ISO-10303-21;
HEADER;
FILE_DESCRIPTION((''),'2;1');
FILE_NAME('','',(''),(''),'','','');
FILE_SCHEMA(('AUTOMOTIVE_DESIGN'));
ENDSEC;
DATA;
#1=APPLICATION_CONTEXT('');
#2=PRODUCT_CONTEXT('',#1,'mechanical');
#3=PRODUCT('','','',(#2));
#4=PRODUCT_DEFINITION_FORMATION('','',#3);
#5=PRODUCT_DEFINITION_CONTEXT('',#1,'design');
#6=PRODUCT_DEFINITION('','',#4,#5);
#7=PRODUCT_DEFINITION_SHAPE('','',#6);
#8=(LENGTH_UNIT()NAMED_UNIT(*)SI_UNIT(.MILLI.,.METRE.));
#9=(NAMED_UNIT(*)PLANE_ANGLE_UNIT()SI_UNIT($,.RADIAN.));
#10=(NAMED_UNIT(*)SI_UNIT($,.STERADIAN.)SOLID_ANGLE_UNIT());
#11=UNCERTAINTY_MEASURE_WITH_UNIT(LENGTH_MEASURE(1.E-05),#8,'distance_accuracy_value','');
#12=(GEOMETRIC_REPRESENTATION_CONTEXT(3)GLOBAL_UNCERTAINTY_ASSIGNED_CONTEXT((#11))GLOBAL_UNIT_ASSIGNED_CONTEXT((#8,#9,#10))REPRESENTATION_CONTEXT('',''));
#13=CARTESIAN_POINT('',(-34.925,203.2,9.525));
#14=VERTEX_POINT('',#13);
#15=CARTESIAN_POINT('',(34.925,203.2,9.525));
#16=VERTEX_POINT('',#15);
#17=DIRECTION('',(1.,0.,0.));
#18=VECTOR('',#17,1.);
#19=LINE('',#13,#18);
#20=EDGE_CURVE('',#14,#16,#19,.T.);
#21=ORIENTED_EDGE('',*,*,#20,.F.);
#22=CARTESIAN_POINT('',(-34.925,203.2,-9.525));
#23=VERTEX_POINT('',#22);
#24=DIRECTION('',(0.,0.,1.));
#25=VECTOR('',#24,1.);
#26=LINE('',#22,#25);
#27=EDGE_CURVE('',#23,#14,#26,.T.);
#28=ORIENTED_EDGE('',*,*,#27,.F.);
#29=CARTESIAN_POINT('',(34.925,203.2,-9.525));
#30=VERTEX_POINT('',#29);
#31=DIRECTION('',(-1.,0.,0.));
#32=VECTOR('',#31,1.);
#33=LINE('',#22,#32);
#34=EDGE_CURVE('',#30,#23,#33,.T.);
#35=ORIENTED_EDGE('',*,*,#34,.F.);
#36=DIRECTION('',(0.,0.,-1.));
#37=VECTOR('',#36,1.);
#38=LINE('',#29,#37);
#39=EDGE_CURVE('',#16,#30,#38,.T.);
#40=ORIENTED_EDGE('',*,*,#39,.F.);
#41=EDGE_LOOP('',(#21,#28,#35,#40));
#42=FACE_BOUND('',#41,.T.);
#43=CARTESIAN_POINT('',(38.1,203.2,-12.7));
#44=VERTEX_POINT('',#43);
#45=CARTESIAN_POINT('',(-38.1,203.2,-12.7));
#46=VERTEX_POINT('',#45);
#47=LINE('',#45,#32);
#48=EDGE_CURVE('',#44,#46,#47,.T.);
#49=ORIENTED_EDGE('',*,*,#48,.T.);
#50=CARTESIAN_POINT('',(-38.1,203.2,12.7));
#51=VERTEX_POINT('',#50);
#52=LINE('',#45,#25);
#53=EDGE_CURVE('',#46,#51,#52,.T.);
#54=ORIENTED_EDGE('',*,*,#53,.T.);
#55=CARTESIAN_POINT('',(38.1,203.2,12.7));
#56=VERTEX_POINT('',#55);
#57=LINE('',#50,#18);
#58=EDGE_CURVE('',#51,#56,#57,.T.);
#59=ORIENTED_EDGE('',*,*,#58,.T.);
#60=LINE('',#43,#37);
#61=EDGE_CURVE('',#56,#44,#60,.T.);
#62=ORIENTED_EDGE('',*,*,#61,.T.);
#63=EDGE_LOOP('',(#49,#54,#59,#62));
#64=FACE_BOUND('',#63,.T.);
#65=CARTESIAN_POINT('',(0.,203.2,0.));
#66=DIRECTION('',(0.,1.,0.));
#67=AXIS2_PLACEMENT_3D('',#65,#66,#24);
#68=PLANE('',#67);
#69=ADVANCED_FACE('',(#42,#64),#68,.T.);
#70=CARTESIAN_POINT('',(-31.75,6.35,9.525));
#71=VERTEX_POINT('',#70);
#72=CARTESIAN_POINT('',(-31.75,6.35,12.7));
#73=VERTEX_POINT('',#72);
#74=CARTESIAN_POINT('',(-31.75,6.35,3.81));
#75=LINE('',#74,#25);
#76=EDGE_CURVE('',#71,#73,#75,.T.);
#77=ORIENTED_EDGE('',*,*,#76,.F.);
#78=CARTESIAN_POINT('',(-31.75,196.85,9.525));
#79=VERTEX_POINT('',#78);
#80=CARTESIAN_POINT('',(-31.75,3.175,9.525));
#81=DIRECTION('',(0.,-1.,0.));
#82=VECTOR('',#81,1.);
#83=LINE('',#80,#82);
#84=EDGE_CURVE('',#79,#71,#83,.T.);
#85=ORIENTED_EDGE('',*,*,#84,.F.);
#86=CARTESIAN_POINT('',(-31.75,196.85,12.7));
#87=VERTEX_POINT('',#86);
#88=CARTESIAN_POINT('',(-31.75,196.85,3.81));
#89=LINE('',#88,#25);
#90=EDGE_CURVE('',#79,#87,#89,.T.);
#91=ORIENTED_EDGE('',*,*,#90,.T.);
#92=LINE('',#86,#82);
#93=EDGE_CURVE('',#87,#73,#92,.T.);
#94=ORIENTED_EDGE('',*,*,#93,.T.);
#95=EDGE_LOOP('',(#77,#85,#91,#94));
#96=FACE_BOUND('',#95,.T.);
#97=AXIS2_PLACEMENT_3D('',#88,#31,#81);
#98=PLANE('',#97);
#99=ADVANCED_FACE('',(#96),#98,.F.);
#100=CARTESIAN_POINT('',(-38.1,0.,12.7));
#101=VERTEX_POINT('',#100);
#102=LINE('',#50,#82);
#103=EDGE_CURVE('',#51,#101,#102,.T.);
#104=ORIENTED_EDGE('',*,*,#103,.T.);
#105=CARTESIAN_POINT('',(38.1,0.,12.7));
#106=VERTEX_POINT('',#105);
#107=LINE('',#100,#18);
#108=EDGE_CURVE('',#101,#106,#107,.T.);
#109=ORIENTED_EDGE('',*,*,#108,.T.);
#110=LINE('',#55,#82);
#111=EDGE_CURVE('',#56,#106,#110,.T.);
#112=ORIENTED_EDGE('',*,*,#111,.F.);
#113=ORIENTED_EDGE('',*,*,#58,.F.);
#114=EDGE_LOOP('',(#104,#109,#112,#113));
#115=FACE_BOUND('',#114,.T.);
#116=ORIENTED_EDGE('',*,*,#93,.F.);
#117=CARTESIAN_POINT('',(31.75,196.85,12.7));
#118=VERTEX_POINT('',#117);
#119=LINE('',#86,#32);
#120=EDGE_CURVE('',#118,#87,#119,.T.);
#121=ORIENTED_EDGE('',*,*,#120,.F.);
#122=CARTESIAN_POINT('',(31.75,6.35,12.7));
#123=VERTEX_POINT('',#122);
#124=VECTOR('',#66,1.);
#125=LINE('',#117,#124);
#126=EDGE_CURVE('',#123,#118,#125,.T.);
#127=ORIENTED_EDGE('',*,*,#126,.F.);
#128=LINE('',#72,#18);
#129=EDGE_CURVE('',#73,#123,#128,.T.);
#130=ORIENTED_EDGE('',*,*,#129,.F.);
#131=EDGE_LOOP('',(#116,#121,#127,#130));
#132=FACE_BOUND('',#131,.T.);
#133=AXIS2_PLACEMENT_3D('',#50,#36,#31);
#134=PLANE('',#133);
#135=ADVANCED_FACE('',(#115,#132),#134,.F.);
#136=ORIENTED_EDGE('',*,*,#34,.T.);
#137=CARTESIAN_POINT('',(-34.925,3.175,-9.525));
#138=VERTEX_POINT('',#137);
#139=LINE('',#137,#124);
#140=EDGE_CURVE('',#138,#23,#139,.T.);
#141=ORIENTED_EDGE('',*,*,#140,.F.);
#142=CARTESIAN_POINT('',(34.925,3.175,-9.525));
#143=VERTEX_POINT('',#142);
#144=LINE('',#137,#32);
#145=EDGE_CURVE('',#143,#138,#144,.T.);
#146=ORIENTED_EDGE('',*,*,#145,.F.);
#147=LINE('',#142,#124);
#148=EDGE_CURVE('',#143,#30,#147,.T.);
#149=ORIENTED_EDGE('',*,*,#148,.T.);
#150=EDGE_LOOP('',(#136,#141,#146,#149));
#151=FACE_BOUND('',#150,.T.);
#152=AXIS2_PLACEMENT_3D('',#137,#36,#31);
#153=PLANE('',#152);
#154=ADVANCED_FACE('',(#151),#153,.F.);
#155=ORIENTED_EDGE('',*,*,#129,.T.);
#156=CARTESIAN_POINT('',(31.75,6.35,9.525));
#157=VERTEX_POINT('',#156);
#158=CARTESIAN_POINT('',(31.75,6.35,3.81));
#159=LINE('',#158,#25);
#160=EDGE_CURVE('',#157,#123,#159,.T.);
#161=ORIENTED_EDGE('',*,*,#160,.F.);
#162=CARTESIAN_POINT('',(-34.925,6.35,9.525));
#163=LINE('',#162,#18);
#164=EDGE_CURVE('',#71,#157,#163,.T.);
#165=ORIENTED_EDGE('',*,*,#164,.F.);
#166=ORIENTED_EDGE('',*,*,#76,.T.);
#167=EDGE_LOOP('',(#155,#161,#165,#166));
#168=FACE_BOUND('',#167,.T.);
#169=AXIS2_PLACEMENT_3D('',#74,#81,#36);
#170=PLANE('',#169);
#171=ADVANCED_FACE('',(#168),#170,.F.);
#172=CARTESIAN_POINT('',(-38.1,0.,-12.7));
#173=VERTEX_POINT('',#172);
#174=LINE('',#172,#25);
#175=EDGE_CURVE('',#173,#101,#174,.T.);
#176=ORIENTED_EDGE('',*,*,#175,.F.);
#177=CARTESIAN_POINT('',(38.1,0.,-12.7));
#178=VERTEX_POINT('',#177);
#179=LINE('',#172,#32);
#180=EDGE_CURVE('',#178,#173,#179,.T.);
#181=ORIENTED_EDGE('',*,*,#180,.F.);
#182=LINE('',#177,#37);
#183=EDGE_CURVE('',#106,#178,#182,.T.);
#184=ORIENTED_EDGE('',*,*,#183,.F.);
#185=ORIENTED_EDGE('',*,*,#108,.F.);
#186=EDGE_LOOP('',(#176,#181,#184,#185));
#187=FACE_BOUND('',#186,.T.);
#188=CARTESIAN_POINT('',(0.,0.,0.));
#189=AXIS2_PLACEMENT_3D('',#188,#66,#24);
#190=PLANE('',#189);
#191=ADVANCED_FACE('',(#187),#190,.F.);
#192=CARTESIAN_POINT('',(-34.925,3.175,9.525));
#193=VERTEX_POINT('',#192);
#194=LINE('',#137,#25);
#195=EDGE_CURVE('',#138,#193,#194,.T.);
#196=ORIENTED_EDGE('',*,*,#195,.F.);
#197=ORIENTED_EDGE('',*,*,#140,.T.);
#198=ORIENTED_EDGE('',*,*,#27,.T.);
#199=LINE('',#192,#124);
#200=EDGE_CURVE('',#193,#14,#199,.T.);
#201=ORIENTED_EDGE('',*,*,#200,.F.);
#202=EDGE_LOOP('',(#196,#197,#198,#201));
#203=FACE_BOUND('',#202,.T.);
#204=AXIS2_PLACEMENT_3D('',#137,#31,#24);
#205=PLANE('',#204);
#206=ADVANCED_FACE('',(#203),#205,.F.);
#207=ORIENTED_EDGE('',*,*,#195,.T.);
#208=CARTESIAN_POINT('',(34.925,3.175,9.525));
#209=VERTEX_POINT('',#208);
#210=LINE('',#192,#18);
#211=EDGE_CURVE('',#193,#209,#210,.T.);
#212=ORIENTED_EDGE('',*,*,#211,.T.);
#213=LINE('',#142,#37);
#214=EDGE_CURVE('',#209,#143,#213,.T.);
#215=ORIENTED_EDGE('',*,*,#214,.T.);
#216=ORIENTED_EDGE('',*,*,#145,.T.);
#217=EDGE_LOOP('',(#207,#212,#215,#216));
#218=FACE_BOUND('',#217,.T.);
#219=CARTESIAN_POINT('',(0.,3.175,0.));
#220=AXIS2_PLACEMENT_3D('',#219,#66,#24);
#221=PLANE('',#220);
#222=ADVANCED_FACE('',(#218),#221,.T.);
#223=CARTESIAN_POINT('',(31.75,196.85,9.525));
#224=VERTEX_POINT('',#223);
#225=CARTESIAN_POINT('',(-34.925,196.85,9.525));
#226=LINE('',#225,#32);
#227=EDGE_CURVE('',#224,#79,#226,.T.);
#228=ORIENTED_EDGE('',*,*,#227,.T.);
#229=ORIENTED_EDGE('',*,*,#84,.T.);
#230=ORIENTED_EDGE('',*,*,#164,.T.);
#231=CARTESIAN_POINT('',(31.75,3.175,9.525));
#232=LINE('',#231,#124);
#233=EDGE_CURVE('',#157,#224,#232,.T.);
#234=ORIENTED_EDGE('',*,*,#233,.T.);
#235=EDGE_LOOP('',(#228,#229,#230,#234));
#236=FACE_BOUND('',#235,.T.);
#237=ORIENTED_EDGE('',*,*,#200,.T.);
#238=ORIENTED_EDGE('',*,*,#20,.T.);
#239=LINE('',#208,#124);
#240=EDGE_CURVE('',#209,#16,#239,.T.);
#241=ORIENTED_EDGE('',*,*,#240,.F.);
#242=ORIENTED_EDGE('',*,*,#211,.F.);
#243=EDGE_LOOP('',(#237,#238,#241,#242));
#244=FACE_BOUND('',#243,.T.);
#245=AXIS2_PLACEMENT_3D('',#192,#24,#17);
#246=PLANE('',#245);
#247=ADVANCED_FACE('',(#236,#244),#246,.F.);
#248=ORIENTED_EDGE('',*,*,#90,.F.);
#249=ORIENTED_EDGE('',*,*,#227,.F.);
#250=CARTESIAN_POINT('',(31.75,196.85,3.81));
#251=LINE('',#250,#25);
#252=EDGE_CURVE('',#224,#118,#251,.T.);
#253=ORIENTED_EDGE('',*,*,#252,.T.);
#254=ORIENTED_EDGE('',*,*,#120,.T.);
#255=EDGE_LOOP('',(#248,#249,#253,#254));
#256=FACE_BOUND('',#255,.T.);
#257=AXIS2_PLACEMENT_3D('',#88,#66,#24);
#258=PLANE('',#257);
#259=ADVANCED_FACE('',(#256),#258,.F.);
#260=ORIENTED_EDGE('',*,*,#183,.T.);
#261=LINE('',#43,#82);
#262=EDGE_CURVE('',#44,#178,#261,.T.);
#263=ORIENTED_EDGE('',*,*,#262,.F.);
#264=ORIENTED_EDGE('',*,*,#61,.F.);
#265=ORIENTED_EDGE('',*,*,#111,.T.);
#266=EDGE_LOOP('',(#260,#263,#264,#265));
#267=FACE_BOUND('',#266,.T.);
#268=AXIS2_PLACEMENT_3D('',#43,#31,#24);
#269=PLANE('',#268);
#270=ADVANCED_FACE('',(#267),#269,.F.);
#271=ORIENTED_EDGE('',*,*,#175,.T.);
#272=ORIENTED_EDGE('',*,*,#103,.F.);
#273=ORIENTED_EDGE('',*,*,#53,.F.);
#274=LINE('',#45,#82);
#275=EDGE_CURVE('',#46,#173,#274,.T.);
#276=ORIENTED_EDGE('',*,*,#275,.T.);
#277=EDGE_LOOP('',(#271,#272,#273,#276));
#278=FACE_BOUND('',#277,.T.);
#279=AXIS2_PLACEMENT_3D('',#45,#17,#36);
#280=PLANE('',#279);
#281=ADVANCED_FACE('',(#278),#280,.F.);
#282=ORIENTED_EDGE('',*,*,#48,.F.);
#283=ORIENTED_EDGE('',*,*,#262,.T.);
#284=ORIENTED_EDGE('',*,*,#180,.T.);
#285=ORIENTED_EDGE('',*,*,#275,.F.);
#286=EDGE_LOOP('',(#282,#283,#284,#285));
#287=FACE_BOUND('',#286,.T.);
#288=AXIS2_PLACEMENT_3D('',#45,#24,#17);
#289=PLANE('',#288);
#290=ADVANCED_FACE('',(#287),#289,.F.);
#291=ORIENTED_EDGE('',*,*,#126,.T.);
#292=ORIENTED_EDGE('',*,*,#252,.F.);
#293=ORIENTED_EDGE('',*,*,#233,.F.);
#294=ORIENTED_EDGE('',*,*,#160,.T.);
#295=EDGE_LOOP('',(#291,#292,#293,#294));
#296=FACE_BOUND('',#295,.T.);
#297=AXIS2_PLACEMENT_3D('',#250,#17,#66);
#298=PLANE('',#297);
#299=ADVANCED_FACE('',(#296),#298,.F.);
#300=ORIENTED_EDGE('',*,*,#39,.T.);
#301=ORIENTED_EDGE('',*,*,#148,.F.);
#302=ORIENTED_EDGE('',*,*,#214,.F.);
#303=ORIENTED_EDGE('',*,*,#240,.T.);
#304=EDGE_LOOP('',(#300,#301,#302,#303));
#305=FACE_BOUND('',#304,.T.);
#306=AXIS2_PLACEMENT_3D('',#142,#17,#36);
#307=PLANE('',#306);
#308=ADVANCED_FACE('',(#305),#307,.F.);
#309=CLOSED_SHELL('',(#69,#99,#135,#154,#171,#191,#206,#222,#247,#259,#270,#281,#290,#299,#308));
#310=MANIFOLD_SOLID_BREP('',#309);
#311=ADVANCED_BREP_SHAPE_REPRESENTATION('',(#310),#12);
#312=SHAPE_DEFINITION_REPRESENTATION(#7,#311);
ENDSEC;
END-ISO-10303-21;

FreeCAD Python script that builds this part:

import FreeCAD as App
import Part
import Sketcher
Q = App.Units.Quantity


def add_polygon(sketch, points):
    """Adds a closed chain of lines whose ends are joined by coincident constraints."""
    first, n = sketch.GeometryCount, len(points)
    for a, b in zip(points, points[1:] + points[:1]):
        sketch.addGeometry(Part.LineSegment(App.Vector(*a, 0), App.Vector(*b, 0)), False)
    for i in range(n):
        sketch.addConstraint(Sketcher.Constraint("Coincident", first + i, 2, first + (i + 1) % n, 1))

doc = App.newDocument("Part")
params = doc.addObject("Spreadsheet::Sheet", "Params")
for row, (alias, value) in enumerate([
    ("sketch1_width", "3 in"),
    ("sketch1_height", "1 in"),
    ("pad1_length", "8 in"),
    ("sketch2_width", "2.75 in"),
    ("sketch2_height", "0.75 in"),
    ("pocket1_length", "7.875 in"),
    ("sketch3_width", "2.5 in"),
    ("sketch3_height", "7.5 in"),
    ("pocket2_length", "0.35 in"),
], start=1):
    params.set(f"A{row}", alias)
    params.set(f"B{row}", "=" + value)
    params.setAlias(f"B{row}", alias)

body = doc.addObject("PartDesign::Body", "Body")

# Sketch on XZ plane
sketch1 = doc.addObject("Sketcher::SketchObject", "Sketch")
body.addObject(sketch1)
sketch1.AttachmentSupport = (doc.XZ_Plane, [""])
sketch1.MapMode = "FlatFace"
add_polygon(sketch1, [(-38.1, -12.7), (-38.1, 12.7), (38.1, 12.7), (38.1, -12.7)])  # lines 0-3
sketch1.addConstraint([
    Sketcher.Constraint("Vertical", 0),
    Sketcher.Constraint("Horizontal", 1),
    Sketcher.Constraint("Vertical", 2),
    Sketcher.Constraint("Horizontal", 3),
    Sketcher.Constraint("Symmetric", 0, 2, 2, 2, -1, 1),
    Sketcher.Constraint("DistanceX", 1, 1, 1, 2, Q("3 in")),
    Sketcher.Constraint("DistanceY", 0, 1, 0, 2, Q("1 in")),
])
sketch1.setExpression("Constraints[9]", "Params.sketch1_width")
sketch1.setExpression("Constraints[10]", "Params.sketch1_height")
pad1 = doc.addObject("PartDesign::Pad", "Pad")
body.addObject(pad1)
pad1.Profile = sketch1
pad1.setExpression("Length", "Params.pad1_length")
pad1.Reversed = True

# Sketch on XZ plane
sketch2 = doc.addObject("Sketcher::SketchObject", "Sketch001")
body.addObject(sketch2)
sketch2.AttachmentSupport = (doc.XZ_Plane, [""])
sketch2.MapMode = "FlatFace"
sketch2.AttachmentOffset = App.Placement(App.Vector(0, 0, -8 * 25.4), App.Rotation())
add_polygon(sketch2, [(-34.925, -9.525), (-34.925, 9.525), (34.925, 9.525), (34.925, -9.525)])  # lines 0-3
sketch2.addConstraint([
    Sketcher.Constraint("Vertical", 0),
    Sketcher.Constraint("Horizontal", 1),
    Sketcher.Constraint("Vertical", 2),
    Sketcher.Constraint("Horizontal", 3),
    Sketcher.Constraint("Symmetric", 0, 2, 2, 2, -1, 1),
    Sketcher.Constraint("DistanceX", 1, 1, 1, 2, Q("2.75 in")),
    Sketcher.Constraint("DistanceY", 0, 1, 0, 2, Q("0.75 in")),
])
sketch2.setExpression("Constraints[9]", "Params.sketch2_width")
sketch2.setExpression("Constraints[10]", "Params.sketch2_height")
pocket1 = doc.addObject("PartDesign::Pocket", "Pocket")
body.addObject(pocket1)
pocket1.Profile = sketch2
pocket1.setExpression("Length", "Params.pocket1_length")
pocket1.Reversed = True

# Sketch on XY plane
sketch3 = doc.addObject("Sketcher::SketchObject", "Sketch002")
body.addObject(sketch3)
sketch3.AttachmentSupport = (doc.XY_Plane, [""])
sketch3.MapMode = "FlatFace"
sketch3.AttachmentOffset = App.Placement(App.Vector(0, 0, 0.5 * 25.4), App.Rotation())
add_polygon(sketch3, [(-31.75, 196.85), (-31.75, 6.35), (31.75, 6.35), (31.75, 196.85)])  # lines 0-3
sketch3.addConstraint([
    Sketcher.Constraint("Vertical", 0),
    Sketcher.Constraint("Horizontal", 1),
    Sketcher.Constraint("Vertical", 2),
    Sketcher.Constraint("Horizontal", 3),
    Sketcher.Constraint("DistanceX", 1, 1, 1, 2, Q("2.5 in")),
    Sketcher.Constraint("DistanceY", 0, 2, 0, 1, Q("7.5 in")),
    Sketcher.Constraint("DistanceX", 0, 2, -1, 1, Q("1.25 in")),
    Sketcher.Constraint("DistanceY", -1, 1, 0, 2, Q("0.25 in")),
])
sketch3.setExpression("Constraints[8]", "Params.sketch3_width")
sketch3.setExpression("Constraints[9]", "Params.sketch3_height")
pocket2 = doc.addObject("PartDesign::Pocket", "Pocket001")
body.addObject(pocket2)
pocket2.Profile = sketch3
pocket2.setExpression("Length", "Params.pocket2_length")

doc.recompute()
